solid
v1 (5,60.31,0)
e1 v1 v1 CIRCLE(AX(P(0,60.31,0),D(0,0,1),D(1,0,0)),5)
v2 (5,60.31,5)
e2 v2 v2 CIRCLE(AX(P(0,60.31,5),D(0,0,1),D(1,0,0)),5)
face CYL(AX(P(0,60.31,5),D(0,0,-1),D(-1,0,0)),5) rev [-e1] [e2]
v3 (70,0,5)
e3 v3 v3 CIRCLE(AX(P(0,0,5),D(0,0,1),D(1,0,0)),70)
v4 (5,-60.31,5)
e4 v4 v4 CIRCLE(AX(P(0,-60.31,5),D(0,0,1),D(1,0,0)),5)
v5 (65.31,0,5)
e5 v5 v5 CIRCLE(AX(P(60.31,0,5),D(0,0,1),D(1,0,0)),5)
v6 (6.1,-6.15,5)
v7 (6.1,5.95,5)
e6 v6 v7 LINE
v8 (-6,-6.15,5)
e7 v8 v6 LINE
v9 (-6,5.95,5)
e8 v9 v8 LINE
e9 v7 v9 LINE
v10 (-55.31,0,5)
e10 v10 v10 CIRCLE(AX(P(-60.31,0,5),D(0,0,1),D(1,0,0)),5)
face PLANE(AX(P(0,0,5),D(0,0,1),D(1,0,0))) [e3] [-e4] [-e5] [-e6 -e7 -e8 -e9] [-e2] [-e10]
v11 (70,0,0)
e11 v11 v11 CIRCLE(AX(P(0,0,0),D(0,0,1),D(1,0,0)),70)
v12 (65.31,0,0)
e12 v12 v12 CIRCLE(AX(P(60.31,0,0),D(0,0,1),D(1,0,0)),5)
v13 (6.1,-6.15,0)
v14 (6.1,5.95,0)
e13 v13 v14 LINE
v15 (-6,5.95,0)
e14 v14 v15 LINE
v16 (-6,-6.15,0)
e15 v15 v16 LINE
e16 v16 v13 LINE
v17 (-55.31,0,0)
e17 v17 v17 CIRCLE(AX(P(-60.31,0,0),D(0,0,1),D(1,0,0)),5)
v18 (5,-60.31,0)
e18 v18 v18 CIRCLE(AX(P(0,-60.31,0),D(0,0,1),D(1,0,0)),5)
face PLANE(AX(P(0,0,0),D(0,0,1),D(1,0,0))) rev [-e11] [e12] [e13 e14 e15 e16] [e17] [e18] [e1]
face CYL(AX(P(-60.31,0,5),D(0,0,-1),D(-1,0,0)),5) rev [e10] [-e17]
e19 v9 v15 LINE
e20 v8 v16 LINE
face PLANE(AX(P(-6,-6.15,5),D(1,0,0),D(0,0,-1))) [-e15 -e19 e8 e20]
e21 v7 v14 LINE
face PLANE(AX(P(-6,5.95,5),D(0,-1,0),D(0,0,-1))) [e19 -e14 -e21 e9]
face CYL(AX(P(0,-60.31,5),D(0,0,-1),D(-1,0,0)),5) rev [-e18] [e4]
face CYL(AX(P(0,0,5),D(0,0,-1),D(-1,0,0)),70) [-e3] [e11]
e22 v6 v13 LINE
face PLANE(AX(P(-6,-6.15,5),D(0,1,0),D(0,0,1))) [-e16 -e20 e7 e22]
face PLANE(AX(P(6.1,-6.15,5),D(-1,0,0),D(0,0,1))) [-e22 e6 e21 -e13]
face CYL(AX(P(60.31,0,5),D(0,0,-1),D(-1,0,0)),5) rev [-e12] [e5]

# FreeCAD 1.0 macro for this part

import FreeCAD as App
import Part
import Sketcher
from FreeCAD import Vector

doc = App.newDocument("Part")
body = doc.addObject("PartDesign::Body", "Body")

# Sketch on XY plane
sketch1 = body.newObject("Sketcher::SketchObject", "Sketch")
sketch1.AttachmentSupport = (doc.getObject("XY_Plane"), [""])
sketch1.MapMode = "FlatFace"
sketch1.addGeometry([
    Part.Circle(Vector(0, 0, 0), Vector(0, 0, 1), 70),  # 0
    Part.Circle(Vector(0, -60, 0), Vector(0, 0, 1), 5),  # 1
    Part.LineSegment(Vector(6, -6, 0), Vector(-6, -6, 0)),  # 2
    Part.LineSegment(Vector(-6, -6, 0), Vector(-6, 6, 0)),  # 3
    Part.LineSegment(Vector(-6, 6, 0), Vector(6, 6, 0)),  # 4
    Part.LineSegment(Vector(6, 6, 0), Vector(6, -6, 0)),  # 5
    Part.Circle(Vector(-60, 0, 0), Vector(0, 0, 1), 5),  # 6
    Part.Circle(Vector(60, 0, 0), Vector(0, 0, 1), 5),  # 7
    Part.Circle(Vector(0, 60, 0), Vector(0, 0, 1), 5),  # 8
], False)
sketch1.addConstraint([
    Sketcher.Constraint("Coincident", 2, 2, 3, 1),
    Sketcher.Constraint("Coincident", 3, 2, 4, 1),
    Sketcher.Constraint("Coincident", 4, 2, 5, 1),
    Sketcher.Constraint("Coincident", 5, 2, 2, 1),
    Sketcher.Constraint("Horizontal", 2),
    Sketcher.Constraint("Vertical", 3),
    Sketcher.Constraint("Horizontal", 4),
    Sketcher.Constraint("Vertical", 5),
    Sketcher.Constraint("Coincident", 0, 3, -1, 1),
    Sketcher.Constraint("Equal", 1, 6),
    Sketcher.Constraint("Equal", 6, 7),
    Sketcher.Constraint("Equal", 7, 8),
    Sketcher.Constraint("Symmetric", 6, 3, 7, 3, -1, 1),
    Sketcher.Constraint("Symmetric", 1, 3, 8, 3, -1, 1),
    Sketcher.Constraint("PointOnObject", 1, 3, -2),
    Sketcher.Constraint("PointOnObject", 6, 3, -1),
    Sketcher.Constraint("Equal", 4, 3),
    Sketcher.Constraint("Diameter", 0, 140.0),
    Sketcher.Constraint("Diameter", 1, 10.0),
    Sketcher.Constraint("DistanceX", 2, 2, 2, 1, 12.1),
    Sketcher.Constraint("DistanceX", 2, 2, -1, 1, 6.0),
    Sketcher.Constraint("DistanceY", 1, 3, -1, 1, 60.31),
    Sketcher.Constraint("DistanceX", 6, 3, -1, 1, 60.31),
    Sketcher.Constraint("DistanceY", 2, 2, -1, 1, 6.15),
])
pad1 = body.newObject("PartDesign::Pad", "Pad")
pad1.Profile = sketch1
pad1.Length = 5

doc.recompute()
